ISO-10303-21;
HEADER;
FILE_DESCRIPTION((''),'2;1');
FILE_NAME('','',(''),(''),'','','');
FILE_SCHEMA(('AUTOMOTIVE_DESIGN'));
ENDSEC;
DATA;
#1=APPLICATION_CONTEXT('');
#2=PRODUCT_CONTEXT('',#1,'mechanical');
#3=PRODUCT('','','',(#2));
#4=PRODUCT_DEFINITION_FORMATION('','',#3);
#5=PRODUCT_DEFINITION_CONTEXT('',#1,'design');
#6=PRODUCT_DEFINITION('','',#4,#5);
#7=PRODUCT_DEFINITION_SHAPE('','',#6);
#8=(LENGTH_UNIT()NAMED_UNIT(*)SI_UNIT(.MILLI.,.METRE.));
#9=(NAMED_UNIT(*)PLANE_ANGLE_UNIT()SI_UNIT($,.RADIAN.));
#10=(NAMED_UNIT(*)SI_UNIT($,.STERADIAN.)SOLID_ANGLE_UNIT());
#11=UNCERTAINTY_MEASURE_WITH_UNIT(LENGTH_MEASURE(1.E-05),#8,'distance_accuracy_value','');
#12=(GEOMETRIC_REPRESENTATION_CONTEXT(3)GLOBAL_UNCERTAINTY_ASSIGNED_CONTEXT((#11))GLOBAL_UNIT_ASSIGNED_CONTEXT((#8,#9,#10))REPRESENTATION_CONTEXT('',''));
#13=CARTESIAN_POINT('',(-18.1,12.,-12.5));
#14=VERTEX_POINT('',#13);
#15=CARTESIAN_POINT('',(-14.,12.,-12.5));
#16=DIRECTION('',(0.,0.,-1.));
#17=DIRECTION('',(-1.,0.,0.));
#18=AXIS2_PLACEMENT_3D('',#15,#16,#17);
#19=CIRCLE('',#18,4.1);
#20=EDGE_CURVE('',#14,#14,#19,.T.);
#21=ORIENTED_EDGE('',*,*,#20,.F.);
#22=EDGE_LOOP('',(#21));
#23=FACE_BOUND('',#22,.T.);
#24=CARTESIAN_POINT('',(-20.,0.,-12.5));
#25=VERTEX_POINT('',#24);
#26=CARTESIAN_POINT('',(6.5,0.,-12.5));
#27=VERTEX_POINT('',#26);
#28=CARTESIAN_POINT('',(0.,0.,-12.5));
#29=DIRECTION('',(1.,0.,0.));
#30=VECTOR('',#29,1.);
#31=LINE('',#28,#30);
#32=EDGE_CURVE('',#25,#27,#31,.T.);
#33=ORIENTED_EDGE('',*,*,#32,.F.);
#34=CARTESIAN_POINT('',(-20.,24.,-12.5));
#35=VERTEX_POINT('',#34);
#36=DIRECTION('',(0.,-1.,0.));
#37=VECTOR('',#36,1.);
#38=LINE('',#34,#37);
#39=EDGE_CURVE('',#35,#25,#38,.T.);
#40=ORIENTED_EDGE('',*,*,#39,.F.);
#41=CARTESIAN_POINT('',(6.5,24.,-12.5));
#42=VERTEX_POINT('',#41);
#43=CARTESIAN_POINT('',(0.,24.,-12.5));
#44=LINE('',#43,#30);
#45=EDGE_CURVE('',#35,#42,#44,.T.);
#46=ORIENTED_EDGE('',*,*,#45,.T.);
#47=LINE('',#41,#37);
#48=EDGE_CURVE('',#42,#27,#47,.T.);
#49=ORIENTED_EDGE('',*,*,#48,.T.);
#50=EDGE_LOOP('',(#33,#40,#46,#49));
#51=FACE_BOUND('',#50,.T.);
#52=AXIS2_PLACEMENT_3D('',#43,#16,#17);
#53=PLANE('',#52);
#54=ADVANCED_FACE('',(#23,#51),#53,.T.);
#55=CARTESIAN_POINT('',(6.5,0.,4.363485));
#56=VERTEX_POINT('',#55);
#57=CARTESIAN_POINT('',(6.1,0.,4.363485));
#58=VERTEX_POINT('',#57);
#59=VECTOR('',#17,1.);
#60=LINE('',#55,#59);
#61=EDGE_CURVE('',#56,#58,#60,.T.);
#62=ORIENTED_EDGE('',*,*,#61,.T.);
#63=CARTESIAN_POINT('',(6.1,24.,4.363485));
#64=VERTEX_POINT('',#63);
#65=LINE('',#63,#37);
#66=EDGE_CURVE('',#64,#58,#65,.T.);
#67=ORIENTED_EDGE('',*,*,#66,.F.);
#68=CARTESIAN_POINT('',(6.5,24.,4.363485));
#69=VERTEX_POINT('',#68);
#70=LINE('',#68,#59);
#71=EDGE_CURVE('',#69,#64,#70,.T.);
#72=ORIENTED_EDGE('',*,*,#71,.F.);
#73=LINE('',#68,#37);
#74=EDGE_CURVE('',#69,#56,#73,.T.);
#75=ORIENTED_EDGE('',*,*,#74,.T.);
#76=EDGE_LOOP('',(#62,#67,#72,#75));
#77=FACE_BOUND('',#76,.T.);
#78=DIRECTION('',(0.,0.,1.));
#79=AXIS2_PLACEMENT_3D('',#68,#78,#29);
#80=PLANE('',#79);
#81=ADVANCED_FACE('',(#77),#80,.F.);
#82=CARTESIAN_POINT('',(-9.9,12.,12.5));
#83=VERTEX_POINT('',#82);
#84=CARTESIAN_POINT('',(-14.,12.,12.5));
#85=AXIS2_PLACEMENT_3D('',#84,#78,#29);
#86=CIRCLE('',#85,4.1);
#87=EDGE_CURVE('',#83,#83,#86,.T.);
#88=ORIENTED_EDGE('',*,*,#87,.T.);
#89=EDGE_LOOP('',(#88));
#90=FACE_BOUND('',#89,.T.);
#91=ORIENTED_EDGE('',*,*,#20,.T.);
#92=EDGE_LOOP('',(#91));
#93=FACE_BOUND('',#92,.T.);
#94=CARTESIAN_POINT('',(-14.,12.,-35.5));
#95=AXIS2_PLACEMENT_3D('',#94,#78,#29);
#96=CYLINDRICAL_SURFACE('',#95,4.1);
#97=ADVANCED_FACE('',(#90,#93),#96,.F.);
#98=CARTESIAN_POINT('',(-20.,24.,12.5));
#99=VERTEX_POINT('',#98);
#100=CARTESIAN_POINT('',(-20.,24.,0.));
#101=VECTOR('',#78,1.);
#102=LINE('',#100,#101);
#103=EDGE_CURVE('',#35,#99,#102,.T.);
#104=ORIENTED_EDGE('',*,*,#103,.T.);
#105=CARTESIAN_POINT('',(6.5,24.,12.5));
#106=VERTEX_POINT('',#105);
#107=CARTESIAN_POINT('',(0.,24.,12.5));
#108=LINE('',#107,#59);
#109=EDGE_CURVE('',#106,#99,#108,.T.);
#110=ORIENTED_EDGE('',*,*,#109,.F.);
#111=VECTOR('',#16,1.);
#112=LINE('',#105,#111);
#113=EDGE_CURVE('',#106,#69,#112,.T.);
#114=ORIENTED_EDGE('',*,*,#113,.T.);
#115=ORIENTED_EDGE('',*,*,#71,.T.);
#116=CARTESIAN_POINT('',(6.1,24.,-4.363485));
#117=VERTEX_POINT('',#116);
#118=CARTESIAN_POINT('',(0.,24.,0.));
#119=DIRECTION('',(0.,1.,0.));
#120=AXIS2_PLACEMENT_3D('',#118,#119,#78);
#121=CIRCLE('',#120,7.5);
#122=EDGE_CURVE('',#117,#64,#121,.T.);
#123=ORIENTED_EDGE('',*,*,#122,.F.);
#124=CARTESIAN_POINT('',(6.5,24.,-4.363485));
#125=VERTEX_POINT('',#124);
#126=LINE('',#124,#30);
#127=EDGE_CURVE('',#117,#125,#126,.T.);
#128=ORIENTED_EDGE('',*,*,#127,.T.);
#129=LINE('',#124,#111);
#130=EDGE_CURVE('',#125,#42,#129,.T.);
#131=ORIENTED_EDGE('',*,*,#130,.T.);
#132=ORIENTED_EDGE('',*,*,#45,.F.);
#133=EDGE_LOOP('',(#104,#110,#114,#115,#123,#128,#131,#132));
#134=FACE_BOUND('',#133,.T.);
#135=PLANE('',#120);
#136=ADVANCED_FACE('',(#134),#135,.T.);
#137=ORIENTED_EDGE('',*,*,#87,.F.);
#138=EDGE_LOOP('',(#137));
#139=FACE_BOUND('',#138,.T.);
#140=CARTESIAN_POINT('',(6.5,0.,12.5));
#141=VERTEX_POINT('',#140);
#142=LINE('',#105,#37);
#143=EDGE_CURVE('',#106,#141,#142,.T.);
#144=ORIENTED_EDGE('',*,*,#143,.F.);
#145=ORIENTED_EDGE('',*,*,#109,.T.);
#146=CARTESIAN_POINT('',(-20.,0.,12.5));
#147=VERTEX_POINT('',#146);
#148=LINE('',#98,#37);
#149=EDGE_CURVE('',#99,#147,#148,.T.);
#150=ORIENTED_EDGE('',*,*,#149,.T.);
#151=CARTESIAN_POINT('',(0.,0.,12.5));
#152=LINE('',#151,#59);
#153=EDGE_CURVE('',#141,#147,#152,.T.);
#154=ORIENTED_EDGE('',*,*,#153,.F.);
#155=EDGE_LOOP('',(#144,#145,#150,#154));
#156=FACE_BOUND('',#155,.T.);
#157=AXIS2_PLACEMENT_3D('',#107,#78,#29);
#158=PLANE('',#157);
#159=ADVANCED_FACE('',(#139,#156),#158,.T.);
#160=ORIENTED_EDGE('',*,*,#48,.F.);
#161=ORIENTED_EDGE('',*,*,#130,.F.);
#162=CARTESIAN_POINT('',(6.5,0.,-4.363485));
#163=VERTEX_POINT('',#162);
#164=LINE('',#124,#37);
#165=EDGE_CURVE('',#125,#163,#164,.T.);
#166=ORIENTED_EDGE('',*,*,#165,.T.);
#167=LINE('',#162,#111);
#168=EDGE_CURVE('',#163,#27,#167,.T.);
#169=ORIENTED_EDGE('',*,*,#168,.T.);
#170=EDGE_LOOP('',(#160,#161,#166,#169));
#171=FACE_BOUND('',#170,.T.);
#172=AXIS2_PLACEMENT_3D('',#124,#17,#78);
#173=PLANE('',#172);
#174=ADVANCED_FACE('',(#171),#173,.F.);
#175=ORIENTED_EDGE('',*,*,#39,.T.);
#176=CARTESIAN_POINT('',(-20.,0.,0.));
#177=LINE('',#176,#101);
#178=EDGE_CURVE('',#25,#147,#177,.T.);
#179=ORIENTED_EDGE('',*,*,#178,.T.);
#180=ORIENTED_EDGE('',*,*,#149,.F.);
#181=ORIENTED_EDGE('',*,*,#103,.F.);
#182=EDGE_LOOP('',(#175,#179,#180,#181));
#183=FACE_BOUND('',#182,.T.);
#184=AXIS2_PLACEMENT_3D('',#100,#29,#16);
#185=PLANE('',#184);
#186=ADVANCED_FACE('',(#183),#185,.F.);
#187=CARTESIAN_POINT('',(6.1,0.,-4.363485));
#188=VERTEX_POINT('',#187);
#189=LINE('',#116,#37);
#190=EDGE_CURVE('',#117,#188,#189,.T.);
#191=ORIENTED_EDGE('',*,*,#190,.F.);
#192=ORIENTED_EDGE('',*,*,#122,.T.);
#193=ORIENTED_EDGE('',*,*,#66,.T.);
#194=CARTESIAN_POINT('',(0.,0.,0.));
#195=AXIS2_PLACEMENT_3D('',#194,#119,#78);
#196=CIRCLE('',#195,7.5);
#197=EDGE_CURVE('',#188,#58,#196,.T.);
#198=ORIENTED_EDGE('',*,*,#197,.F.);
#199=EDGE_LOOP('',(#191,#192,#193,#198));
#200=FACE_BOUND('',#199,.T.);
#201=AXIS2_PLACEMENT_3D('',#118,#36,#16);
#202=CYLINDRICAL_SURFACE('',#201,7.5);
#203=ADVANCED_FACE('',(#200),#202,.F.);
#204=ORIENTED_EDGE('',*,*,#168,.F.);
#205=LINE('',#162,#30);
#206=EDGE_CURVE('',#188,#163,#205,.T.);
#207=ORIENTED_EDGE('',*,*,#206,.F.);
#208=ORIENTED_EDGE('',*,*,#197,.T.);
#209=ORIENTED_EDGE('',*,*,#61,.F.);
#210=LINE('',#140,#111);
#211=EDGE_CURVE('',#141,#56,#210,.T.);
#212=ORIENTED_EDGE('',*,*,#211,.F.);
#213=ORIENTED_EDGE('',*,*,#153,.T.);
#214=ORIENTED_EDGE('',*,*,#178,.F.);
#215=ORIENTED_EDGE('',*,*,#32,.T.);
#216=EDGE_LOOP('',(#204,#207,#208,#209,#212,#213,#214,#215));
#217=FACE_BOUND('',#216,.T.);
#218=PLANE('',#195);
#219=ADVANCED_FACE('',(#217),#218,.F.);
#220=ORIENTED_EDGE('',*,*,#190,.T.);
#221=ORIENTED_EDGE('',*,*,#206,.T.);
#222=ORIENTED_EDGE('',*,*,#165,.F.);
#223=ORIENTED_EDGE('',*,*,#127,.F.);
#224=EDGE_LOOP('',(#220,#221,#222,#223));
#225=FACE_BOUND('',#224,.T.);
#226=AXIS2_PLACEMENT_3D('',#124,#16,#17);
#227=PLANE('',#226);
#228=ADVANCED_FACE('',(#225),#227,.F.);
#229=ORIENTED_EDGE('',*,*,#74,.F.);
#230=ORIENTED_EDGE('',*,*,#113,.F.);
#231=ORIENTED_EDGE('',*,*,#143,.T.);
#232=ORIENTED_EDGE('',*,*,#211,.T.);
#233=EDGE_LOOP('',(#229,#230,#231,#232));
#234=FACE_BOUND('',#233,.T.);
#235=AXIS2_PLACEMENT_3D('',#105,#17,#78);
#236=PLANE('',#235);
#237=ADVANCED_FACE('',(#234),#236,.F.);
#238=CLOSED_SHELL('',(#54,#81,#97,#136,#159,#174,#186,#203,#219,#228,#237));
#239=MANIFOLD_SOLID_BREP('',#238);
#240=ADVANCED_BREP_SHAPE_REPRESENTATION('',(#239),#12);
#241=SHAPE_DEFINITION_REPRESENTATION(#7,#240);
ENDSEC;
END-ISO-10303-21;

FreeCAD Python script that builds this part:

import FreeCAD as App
import Part
import Sketcher


def add_polygon(sketch, points):
    """Adds a closed chain of lines whose ends are joined by coincident constraints."""
    first, n = sketch.GeometryCount, len(points)
    for a, b in zip(points, points[1:] + points[:1]):
        sketch.addGeometry(Part.LineSegment(App.Vector(*a, 0), App.Vector(*b, 0)), False)
    for i in range(n):
        sketch.addConstraint(Sketcher.Constraint("Coincident", first + i, 2, first + (i + 1) % n, 1))

doc = App.newDocument("Part")
body = doc.addObject("PartDesign::Body", "Body")

# Sketch on XZ plane
sketch1 = doc.addObject("Sketcher::SketchObject", "Sketch")
body.addObject(sketch1)
sketch1.AttachmentSupport = (doc.XZ_Plane, [""])
sketch1.MapMode = "FlatFace"
add_polygon(sketch1, [(-10, -12), (-10, 12), (12, 12), (12, -12)])  # lines 0-3
sketch1.addGeometry(Part.Circle(App.Vector(0, 0, 0), App.Vector(0, 0, 1), 8), False)  # 4
sketch1.addConstraint(Sketcher.Constraint("Vertical", 0))
sketch1.addConstraint(Sketcher.Constraint("Horizontal", 1))
sketch1.addConstraint(Sketcher.Constraint("Vertical", 2))
sketch1.addConstraint(Sketcher.Constraint("Horizontal", 3))
sketch1.addConstraint(Sketcher.Constraint("Coincident", 4, 3, -1, 1))
sketch1.addConstraint(Sketcher.Constraint("Diameter", 4, 15.0))
sketch1.addConstraint(Sketcher.Constraint("DistanceY", 0, 1, 0, 2, 25.0))
sketch1.addConstraint(Sketcher.Constraint("DistanceX", 1, 1, 1, 2, 22.5))
sketch1.addConstraint(Sketcher.Constraint("DistanceX", 0, 2, -1, 1, 10.0))
sketch1.addConstraint(Sketcher.Constraint("DistanceY", -1, 1, 0, 2, 12.5))
pad1 = doc.addObject("PartDesign::Pad", "Pad")
body.addObject(pad1)
pad1.Profile = sketch1
pad1.Length = 24
pad1.Reversed = True

# Sketch on XZ plane
sketch2 = doc.addObject("Sketcher::SketchObject", "Sketch001")
body.addObject(sketch2)
sketch2.AttachmentSupport = (doc.XZ_Plane, [""])
sketch2.MapMode = "FlatFace"
add_polygon(sketch2, [(12.5, 12.5), (6.5, 12.5), (6.5, 4.36), (6.1, 4.36), (6.1, -4.36), (6.5, -4.36), (6.5, -12.5), (12.5, -12.5)])  # lines 0-7
sketch2.addConstraint(Sketcher.Constraint("Horizontal", 0))
sketch2.addConstraint(Sketcher.Constraint("Vertical", 1))
sketch2.addConstraint(Sketcher.Constraint("Horizontal", 2))
sketch2.addConstraint(Sketcher.Constraint("Vertical", 3))
sketch2.addConstraint(Sketcher.Constraint("Horizontal", 4))
sketch2.addConstraint(Sketcher.Constraint("Vertical", 5))
sketch2.addConstraint(Sketcher.Constraint("Horizontal", 6))
sketch2.addConstraint(Sketcher.Constraint("Vertical", 7))
sketch2.addConstraint(Sketcher.Constraint("Symmetric", 1, 2, 4, 2, -1))
sketch2.addConstraint(Sketcher.Constraint("Equal", 1, 5))
sketch2.addConstraint(Sketcher.Constraint("DistanceX", 0, 2, 0, 1, 6.0))
sketch2.addConstraint(Sketcher.Constraint("DistanceY", 7, 1, 7, 2, 25.0))
sketch2.addConstraint(Sketcher.Constraint("DistanceX", 2, 2, 2, 1, 0.4))
sketch2.addConstraint(Sketcher.Constraint("DistanceX", -1, 1, 0, 2, 6.5))
sketch2.addConstraint(Sketcher.Constraint("DistanceY", 3, 2, 3, 1, 8.72697))
pocket1 = doc.addObject("PartDesign::Pocket", "Pocket")
body.addObject(pocket1)
pocket1.Profile = sketch2
pocket1.Type = "ThroughAll"

# Sketch on XZ plane
sketch3 = doc.addObject("Sketcher::SketchObject", "Sketch002")
body.addObject(sketch3)
sketch3.AttachmentSupport = (doc.XZ_Plane, [""])
sketch3.MapMode = "FlatFace"
add_polygon(sketch3, [(-20, 12), (-20, -12), (-10, -12), (-10, 12)])  # lines 0-3
sketch3.addConstraint(Sketcher.Constraint("Vertical", 0))
sketch3.addConstraint(Sketcher.Constraint("Horizontal", 1))
sketch3.addConstraint(Sketcher.Constraint("Vertical", 2))
sketch3.addConstraint(Sketcher.Constraint("Horizontal", 3))
sketch3.addConstraint(Sketcher.Constraint("DistanceX", 1, 1, 1, 2, 10.0))
sketch3.addConstraint(Sketcher.Constraint("DistanceY", 0, 2, 0, 1, 25.0))
sketch3.addConstraint(Sketcher.Constraint("DistanceX", 0, 2, -1, 1, 20.0))
sketch3.addConstraint(Sketcher.Constraint("DistanceY", 0, 2, -1, 1, 12.5))
pad2 = doc.addObject("PartDesign::Pad", "Pad001")
body.addObject(pad2)
pad2.Profile = sketch3
pad2.Length = 24
pad2.Reversed = True

# Sketch on XY plane
sketch4 = doc.addObject("Sketcher::SketchObject", "Sketch003")
body.addObject(sketch4)
sketch4.AttachmentSupport = (doc.XY_Plane, [""])
sketch4.MapMode = "FlatFace"
sketch4.AttachmentOffset = App.Placement(App.Vector(0, 0, 12.5), App.Rotation())
sketch4.addGeometry(Part.Circle(App.Vector(-14, 12, 0), App.Vector(0, 0, 1), 4.1), False)
sketch4.addConstraint(Sketcher.Constraint("Diameter", 0, 8.2))
sketch4.addConstraint(Sketcher.Constraint("DistanceX", 0, 3, -1, 1, 14.0))
sketch4.addConstraint(Sketcher.Constraint("DistanceY", -1, 1, 0, 3, 12.0))
pocket2 = doc.addObject("PartDesign::Pocket", "Pocket001")
body.addObject(pocket2)
pocket2.Profile = sketch4
pocket2.Length = 48

doc.recompute()
